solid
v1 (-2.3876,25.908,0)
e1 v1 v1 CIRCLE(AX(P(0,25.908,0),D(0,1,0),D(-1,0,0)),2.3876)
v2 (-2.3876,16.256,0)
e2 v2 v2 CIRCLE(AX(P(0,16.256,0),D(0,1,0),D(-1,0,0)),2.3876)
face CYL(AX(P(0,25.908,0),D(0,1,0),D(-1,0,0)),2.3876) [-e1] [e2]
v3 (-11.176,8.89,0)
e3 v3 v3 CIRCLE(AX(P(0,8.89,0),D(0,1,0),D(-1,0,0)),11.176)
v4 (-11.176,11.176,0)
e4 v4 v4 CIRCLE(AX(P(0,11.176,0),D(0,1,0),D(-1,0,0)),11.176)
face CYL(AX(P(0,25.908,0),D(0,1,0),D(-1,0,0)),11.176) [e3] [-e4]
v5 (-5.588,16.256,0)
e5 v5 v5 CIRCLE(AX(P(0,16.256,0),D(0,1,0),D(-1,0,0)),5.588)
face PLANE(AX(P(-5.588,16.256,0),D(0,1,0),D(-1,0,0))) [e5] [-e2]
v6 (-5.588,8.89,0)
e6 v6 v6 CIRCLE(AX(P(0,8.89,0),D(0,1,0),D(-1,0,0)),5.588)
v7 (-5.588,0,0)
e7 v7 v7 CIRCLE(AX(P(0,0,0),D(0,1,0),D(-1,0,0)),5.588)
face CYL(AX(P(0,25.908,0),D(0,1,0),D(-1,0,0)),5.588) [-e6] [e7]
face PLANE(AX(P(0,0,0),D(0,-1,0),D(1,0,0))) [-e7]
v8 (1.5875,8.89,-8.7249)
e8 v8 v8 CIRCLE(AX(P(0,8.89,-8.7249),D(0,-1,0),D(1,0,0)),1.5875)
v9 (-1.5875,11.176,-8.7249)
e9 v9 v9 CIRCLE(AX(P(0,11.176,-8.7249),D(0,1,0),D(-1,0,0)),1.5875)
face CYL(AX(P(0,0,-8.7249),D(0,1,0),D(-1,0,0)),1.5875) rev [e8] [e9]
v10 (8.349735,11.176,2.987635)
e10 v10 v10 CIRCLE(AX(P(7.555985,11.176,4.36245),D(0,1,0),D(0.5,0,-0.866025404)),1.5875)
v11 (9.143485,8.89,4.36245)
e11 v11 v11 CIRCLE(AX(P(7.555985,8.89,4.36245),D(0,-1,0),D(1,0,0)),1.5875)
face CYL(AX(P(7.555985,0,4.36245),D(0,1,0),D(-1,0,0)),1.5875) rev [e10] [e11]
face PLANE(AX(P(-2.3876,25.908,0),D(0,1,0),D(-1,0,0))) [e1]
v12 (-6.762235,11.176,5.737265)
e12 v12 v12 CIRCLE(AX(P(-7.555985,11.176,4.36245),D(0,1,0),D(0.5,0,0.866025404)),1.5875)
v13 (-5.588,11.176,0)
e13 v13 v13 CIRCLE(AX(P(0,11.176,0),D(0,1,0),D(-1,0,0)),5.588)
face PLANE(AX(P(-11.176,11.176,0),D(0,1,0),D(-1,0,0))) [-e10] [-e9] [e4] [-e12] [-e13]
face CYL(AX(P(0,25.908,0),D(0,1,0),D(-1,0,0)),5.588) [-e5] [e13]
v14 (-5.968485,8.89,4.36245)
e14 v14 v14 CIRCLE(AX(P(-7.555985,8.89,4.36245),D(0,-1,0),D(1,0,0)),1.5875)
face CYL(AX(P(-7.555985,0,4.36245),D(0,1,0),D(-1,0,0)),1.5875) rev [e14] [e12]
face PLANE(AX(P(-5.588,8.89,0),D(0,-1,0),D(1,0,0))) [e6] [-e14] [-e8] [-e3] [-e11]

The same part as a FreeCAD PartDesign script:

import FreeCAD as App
import Part
import Sketcher

V = App.Vector
Q = App.Units.Quantity


def add_polygon(sketch, points):
    """Adds a closed chain of lines whose ends are joined by coincident constraints."""
    first, n = sketch.GeometryCount, len(points)
    for a, b in zip(points, points[1:] + points[:1]):
        sketch.addGeometry(Part.LineSegment(App.Vector(*a, 0), App.Vector(*b, 0)), False)
    for i in range(n):
        sketch.addConstraint(Sketcher.Constraint("Coincident", first + i, 2, first + (i + 1) % n, 1))

doc = App.newDocument("Part")
params = doc.addObject("Spreadsheet::Sheet", "Params")
for row, (alias, value) in enumerate([
    ("sketch1_height", "0.2 in"),
    ("sketch1_width", "0.22 in"),
    ("sketch1_height2", "0.35 in"),
    ("sketch1_height3", "1.02 in"),
    ("sketch1_height4", "0.38 in"),
    ("revolution_angle", "360 deg"),
    ("sketch2_diameter", "0.125 in"),
], start=1):
    params.set(f"A{row}", alias)
    params.set(f"B{row}", "=" + value)
    params.setAlias(f"B{row}", alias)

body = doc.addObject("PartDesign::Body", "Body")

# Sketch on XY plane
sketch1 = body.newObject("Sketcher::SketchObject", "Sketch")
sketch1.AttachmentSupport = (doc.getObject("XY_Plane"), [""])
sketch1.MapMode = "FlatFace"
add_polygon(sketch1, [(-5.6, 8.9), (-5.6, 0), (0, 0), (0, 25.9), (-2.4, 25.9), (-2.4, 16.3), (-5.6, 16.3), (-5.6, 11.2), (-11.2, 11.2), (-11.2, 8.9)])  # lines 0-9
sketch1.addConstraint([
    Sketcher.Constraint("Vertical", 0),
    Sketcher.Constraint("Horizontal", 1),
    Sketcher.Constraint("Vertical", 2),
    Sketcher.Constraint("Horizontal", 3),
    Sketcher.Constraint("Vertical", 4),
    Sketcher.Constraint("Horizontal", 5),
    Sketcher.Constraint("Vertical", 6),
    Sketcher.Constraint("Horizontal", 7),
    Sketcher.Constraint("Vertical", 8),
    Sketcher.Constraint("Horizontal", 9),
    Sketcher.Constraint("Coincident", 1, 2, -1, 1),
    Sketcher.Constraint("Vertical", 0, 2, 5, 2),
    Sketcher.Constraint("Equal", 1, 7),
    Sketcher.Constraint("DistanceY", 6, 2, 6, 1, Q("0.2 in")),
    Sketcher.Constraint("DistanceX", 1, 1, 1, 2, Q("0.22 in")),
    Sketcher.Constraint("DistanceY", 0, 2, 0, 1, Q("0.35 in")),
    Sketcher.Constraint("DistanceY", 2, 1, 2, 2, Q("1.02 in")),
    Sketcher.Constraint("DistanceY", 4, 2, 4, 1, Q("0.38 in")),
    Sketcher.Constraint("DistanceX", 3, 2, 3, 1, Q("0.094 in")),
])
sketch1.setExpression("Constraints[23]", "Params.sketch1_height")
sketch1.setExpression("Constraints[24]", "Params.sketch1_width")
sketch1.setExpression("Constraints[25]", "Params.sketch1_height2")
sketch1.setExpression("Constraints[26]", "Params.sketch1_height3")
sketch1.setExpression("Constraints[27]", "Params.sketch1_height4")
revolution = body.newObject("PartDesign::Revolution", "Revolution")
revolution.Profile = sketch1
revolution.ReferenceAxis = (sketch1, ["V_Axis"])
revolution.setExpression("Angle", "Params.revolution_angle")

# Sketch on XZ plane
sketch2 = body.newObject("Sketcher::SketchObject", "Sketch001")
sketch2.AttachmentSupport = (doc.getObject("XZ_Plane"), [""])
sketch2.MapMode = "FlatFace"
sketch2.AttachmentOffset = App.Placement(V(0, 0, -0.44 * 25.4), App.Rotation())
sketch2.addGeometry(Part.Circle(V(0, -8.7, 0), V(0, 0, 1), 1.6), False)
sketch2.addConstraint([
    Sketcher.Constraint("PointOnObject", 0, 3, -2),
    Sketcher.Constraint("Diameter", 0, Q("0.125 in")),
    Sketcher.Constraint("DistanceY", 0, 3, -1, 1, Q("0.3435 in")),
])
sketch2.setExpression("Constraints[1]", "Params.sketch2_diameter")
pocket1 = body.newObject("PartDesign::Pocket", "Pocket")
pocket1.Profile = sketch2
pocket1.Type = "ThroughAll"
pocket1.Reversed = True
doc.recompute()

polarpattern = body.newObject("PartDesign::PolarPattern", "PolarPattern")
polarpattern.Originals = [pocket1]
polarpattern.Axis = (doc.getObject("Y_Axis"), [""])
polarpattern.Angle = 360
polarpattern.Occurrences = 3
body.Tip = polarpattern

doc.recompute()
